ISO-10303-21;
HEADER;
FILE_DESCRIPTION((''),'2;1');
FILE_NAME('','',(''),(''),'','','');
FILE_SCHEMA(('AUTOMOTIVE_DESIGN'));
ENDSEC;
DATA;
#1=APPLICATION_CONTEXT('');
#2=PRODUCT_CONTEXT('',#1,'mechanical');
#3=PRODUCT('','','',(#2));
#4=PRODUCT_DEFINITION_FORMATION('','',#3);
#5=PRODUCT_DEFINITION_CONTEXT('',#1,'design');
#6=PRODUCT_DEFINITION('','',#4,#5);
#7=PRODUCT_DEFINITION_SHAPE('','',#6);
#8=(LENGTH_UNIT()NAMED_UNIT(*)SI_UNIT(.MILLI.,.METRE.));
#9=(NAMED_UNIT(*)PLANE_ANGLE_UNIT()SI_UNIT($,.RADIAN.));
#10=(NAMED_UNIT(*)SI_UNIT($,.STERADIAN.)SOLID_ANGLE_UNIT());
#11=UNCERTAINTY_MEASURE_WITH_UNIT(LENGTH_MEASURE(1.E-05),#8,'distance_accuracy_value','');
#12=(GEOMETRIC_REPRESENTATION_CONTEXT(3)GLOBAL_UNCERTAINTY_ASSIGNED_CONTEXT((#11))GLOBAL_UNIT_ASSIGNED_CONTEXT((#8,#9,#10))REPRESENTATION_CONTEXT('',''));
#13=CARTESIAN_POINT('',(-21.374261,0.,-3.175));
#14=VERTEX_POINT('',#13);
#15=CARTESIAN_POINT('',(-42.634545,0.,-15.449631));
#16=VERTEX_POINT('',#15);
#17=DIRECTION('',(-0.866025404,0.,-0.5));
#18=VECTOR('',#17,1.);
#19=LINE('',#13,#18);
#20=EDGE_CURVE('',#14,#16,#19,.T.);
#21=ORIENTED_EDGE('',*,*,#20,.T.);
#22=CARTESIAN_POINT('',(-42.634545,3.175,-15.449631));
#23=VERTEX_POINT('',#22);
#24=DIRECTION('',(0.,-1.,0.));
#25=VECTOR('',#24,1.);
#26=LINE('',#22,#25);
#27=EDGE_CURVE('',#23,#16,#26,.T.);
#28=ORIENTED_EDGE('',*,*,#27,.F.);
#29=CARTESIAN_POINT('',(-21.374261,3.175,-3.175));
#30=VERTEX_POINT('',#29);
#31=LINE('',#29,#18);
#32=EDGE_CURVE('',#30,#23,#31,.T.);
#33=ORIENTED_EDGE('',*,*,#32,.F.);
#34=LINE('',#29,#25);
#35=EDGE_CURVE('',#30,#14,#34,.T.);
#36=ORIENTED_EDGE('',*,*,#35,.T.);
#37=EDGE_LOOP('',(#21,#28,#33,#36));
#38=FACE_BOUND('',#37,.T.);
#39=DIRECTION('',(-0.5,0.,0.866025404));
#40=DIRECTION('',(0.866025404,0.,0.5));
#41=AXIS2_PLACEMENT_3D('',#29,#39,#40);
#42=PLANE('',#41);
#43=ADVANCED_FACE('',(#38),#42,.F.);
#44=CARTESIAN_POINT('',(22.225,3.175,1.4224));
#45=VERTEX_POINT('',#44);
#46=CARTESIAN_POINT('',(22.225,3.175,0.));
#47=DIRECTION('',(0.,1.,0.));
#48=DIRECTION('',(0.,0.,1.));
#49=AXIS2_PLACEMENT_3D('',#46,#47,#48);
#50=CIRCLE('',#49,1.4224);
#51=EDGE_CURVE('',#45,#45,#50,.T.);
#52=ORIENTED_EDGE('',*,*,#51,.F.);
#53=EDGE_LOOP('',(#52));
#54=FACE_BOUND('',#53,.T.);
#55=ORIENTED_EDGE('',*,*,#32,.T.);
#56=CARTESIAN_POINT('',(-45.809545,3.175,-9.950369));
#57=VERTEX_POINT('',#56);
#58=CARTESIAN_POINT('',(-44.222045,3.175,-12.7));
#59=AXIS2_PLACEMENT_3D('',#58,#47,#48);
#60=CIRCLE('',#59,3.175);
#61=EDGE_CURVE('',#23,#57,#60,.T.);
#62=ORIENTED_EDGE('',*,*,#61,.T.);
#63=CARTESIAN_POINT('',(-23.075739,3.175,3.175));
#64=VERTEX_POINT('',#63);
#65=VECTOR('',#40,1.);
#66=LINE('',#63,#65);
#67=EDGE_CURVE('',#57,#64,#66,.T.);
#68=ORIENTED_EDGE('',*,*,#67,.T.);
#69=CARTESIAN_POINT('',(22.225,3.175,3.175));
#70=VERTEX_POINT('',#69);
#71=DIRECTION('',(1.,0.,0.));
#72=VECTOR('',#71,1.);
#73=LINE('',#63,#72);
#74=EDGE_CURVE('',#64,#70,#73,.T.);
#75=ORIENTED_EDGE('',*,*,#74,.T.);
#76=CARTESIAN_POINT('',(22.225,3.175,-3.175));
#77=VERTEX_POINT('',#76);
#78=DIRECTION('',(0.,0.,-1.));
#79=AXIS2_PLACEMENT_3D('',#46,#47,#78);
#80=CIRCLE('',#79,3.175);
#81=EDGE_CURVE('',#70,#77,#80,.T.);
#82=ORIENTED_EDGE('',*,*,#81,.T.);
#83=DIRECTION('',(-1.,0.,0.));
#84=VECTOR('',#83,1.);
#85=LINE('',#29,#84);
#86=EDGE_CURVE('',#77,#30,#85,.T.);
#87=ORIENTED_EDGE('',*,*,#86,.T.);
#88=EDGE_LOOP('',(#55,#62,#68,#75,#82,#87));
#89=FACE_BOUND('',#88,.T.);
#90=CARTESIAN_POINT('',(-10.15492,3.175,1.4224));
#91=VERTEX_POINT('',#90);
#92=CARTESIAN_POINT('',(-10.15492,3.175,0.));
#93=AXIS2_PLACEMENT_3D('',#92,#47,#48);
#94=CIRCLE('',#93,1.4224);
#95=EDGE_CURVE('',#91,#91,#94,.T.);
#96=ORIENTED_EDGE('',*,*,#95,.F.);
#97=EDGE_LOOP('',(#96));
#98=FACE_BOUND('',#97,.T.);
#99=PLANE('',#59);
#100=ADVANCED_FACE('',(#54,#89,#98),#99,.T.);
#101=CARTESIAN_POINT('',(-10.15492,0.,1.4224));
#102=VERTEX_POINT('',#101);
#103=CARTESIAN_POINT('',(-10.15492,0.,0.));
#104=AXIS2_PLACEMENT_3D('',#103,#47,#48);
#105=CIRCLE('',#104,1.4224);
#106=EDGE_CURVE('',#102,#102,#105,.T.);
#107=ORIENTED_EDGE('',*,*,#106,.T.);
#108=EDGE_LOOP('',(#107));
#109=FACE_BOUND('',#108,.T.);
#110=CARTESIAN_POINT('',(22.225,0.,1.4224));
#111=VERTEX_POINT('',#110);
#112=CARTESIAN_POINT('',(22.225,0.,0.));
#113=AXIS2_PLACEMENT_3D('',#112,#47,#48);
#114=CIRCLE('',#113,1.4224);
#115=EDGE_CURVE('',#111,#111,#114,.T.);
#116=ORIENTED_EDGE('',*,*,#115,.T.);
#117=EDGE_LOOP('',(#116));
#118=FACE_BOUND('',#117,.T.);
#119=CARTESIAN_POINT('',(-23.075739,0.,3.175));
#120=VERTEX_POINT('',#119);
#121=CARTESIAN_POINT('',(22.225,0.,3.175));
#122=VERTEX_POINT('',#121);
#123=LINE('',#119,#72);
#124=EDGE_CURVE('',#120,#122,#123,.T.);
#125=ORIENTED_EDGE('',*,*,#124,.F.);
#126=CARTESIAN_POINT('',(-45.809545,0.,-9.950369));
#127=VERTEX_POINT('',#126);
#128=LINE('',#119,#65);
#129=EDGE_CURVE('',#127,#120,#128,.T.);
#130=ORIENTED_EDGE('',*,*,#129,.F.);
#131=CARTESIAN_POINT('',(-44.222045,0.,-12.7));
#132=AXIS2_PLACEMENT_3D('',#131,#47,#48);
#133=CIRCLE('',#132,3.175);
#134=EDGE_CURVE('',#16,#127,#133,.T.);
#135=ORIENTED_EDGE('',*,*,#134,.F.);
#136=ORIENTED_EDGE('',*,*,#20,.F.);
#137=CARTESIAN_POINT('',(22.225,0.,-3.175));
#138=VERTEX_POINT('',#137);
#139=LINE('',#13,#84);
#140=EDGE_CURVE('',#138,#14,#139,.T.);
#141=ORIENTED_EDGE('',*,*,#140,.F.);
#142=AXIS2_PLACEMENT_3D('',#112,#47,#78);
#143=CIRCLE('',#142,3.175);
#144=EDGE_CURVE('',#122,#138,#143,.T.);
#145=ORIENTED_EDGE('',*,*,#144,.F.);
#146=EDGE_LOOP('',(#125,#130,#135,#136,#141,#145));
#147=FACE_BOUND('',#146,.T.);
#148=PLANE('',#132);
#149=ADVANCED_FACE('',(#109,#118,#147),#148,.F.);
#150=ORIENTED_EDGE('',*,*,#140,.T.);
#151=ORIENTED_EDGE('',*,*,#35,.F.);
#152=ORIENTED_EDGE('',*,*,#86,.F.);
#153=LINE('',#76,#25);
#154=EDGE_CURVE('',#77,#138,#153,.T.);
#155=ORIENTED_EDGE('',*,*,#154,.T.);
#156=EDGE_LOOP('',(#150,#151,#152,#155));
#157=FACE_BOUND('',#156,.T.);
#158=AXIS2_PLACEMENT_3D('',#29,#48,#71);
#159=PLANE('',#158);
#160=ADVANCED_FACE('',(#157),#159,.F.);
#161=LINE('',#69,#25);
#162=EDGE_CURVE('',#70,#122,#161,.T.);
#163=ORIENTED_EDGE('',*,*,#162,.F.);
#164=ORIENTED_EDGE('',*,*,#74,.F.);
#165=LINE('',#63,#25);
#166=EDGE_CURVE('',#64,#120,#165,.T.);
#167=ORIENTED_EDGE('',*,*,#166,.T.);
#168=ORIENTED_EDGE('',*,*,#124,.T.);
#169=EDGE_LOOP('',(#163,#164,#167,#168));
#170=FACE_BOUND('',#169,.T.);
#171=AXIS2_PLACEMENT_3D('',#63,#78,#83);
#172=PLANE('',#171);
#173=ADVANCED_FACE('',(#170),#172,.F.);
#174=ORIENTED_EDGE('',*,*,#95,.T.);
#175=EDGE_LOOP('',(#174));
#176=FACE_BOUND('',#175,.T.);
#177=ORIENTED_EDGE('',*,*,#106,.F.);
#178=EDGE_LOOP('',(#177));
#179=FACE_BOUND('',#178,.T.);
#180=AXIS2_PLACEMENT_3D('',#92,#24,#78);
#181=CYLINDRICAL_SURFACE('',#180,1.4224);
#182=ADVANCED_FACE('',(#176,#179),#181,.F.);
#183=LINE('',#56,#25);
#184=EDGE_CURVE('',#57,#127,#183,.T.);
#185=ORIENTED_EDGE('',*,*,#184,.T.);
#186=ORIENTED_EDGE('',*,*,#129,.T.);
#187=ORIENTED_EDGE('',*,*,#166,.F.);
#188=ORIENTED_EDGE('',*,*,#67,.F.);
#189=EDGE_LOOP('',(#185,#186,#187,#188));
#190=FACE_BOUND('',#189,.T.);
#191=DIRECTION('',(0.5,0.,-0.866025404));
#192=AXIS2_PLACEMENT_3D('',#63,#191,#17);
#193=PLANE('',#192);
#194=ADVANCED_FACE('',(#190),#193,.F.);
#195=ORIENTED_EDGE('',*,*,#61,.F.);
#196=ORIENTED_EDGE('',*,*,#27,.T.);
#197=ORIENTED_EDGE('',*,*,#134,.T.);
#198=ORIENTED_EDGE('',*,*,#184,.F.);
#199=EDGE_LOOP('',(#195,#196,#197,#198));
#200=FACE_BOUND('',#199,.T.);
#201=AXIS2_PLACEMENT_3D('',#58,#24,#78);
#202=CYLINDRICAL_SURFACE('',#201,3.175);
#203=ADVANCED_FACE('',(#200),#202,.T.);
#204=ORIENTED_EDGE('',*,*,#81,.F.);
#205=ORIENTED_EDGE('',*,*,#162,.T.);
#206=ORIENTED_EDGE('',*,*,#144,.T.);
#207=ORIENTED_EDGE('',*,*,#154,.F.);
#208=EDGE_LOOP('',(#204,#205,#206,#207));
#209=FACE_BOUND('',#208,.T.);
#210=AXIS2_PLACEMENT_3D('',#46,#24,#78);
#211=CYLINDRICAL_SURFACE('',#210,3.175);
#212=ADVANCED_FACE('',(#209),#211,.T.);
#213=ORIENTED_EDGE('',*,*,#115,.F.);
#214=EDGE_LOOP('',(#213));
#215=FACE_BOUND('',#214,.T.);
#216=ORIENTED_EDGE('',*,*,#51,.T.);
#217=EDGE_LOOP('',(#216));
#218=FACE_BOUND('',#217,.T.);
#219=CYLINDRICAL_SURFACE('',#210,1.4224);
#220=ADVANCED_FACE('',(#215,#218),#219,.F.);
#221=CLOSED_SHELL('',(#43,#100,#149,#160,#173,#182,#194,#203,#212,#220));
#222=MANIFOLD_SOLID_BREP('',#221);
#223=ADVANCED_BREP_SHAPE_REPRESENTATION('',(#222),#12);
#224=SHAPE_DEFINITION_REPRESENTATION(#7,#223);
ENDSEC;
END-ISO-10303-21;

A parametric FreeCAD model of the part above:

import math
import FreeCAD as App
import Part
import Sketcher

V = App.Vector
Q = App.Units.Quantity

doc = App.newDocument("Part")
body = doc.addObject("PartDesign::Body", "Body")

# Sketch on XZ plane
sketch1 = body.newObject("Sketcher::SketchObject", "Sketch")
sketch1.AttachmentSupport = (doc.getObject("XZ_Plane"), [""])
sketch1.MapMode = "FlatFace"
sketch1.addGeometry([
    Part.LineSegment(V(22.2, -3.2, 0), V(-21.4, -3.2, 0)),  # 0
    Part.LineSegment(V(-21.4, -3.2, 0), V(-42.6, -15.4, 0)),  # 1
    Part.ArcOfCircle(Part.Circle(V(-44.2, -12.7, 0), V(0, 0, 1), 3.2), math.radians(120), math.radians(300)),  # 2
    Part.LineSegment(V(-45.8, -10, 0), V(-23.1, 3.2, 0)),  # 3
    Part.LineSegment(V(-23.1, 3.2, 0), V(22.2, 3.2, 0)),  # 4
    Part.ArcOfCircle(Part.Circle(V(22.2, 0, 0), V(0, 0, 1), 3.2), math.radians(-90), math.radians(90)),  # 5
    Part.Circle(V(22.2, 0, 0), V(0, 0, 1), 1.4),  # 6
    Part.Circle(V(-10.2, 0, 0), V(0, 0, 1), 1.4),  # 7
], False)
sketch1.addConstraint([
    Sketcher.Constraint("Coincident", 0, 2, 1, 1),
    Sketcher.Constraint("Tangent", 1, 2, 2, 2),
    Sketcher.Constraint("Tangent", 2, 1, 3, 1),
    Sketcher.Constraint("Coincident", 3, 2, 4, 1),
    Sketcher.Constraint("Tangent", 4, 2, 5, 2),
    Sketcher.Constraint("Tangent", 5, 1, 0, 1),
    Sketcher.Constraint("Horizontal", 0),
    Sketcher.Constraint("Horizontal", 4),
    Sketcher.Constraint("Coincident", 6, 3, 5, 3),
    Sketcher.Constraint("Equal", 2, 5),
    Sketcher.Constraint("Equal", 6, 7),
    Sketcher.Constraint("PointOnObject", 5, 3, -1),
    Sketcher.Constraint("PointOnObject", 7, 3, -1),
    Sketcher.Constraint("Parallel", 1, 3),
    Sketcher.Constraint("Diameter", 6, Q("0.112 in")),
    Sketcher.Constraint("Angle", 1, Q("-150 deg")),
    Sketcher.Constraint("Radius", 2, Q("0.125 in")),
    Sketcher.Constraint("DistanceY", 2, 3, -1, 1, Q("0.5 in")),
    Sketcher.Constraint("DistanceX", -1, 1, 5, 3, Q("0.875 in")),
    Sketcher.Constraint("DistanceX", 7, 3, -1, 1, Q("0.3998 in")),
    Sketcher.Constraint("DistanceX", 0, 2, 0, 1, 43.599261),
])
pad1 = body.newObject("PartDesign::Pad", "Pad")
pad1.Profile = sketch1
pad1.Length = Q("0.125 in")
pad1.Reversed = True

doc.recompute()
